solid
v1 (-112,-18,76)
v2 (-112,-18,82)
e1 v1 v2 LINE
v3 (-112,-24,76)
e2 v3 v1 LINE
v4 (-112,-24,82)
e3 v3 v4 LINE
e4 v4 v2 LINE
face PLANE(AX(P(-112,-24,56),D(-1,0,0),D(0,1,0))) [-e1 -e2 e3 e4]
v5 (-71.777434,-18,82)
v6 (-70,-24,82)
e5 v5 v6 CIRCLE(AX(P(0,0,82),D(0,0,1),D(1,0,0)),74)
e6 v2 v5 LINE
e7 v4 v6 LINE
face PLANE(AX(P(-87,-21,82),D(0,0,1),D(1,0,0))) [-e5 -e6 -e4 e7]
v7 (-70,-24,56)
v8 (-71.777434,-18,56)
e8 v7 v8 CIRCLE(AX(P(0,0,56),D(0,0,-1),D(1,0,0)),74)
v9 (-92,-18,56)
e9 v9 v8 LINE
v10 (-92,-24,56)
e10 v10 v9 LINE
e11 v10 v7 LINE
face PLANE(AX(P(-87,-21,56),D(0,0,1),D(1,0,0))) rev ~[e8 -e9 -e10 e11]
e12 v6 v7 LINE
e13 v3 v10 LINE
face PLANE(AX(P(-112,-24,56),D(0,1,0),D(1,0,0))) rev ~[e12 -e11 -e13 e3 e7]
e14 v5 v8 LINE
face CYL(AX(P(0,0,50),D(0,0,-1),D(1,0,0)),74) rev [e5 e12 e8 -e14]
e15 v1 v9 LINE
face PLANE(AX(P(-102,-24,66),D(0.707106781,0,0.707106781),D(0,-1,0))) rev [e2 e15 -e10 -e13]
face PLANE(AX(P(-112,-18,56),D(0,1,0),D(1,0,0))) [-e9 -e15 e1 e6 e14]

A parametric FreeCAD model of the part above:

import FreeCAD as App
import Part
import Sketcher

V = App.Vector


def edges_at(feature, points):
    """Names of the edges that pass closest to the given points."""
    edges = feature.Shape.Edges
    near = lambda p: min(range(len(edges)), key=lambda i: edges[i].distToShape(Part.Vertex(*p))[0])
    return sorted({f"Edge{near(p) + 1}" for p in points})


def add_polygon(sketch, points):
    """Adds a closed chain of lines whose ends are joined by coincident constraints."""
    first, n = sketch.GeometryCount, len(points)
    for a, b in zip(points, points[1:] + points[:1]):
        sketch.addGeometry(Part.LineSegment(App.Vector(*a, 0), App.Vector(*b, 0)), False)
    for i in range(n):
        sketch.addConstraint(Sketcher.Constraint("Coincident", first + i, 2, first + (i + 1) % n, 1))

doc = App.newDocument("Part")
params = doc.addObject("Spreadsheet::Sheet", "Params")
for row, (alias, value) in enumerate([
    ("sketch1_diameter", "148 mm"),
    ("pad1_length", "32 mm"),
    ("sketch2_width", "50 mm"),
    ("sketch2_height", "6 mm"),
    ("pad2_length", "26 mm"),
    ("chamfer_size", "20 mm"),
], start=1):
    params.set(f"A{row}", alias)
    params.set(f"B{row}", "=" + value)
    params.setAlias(f"B{row}", alias)

body = doc.addObject("PartDesign::Body", "Body")

sketch1 = doc.addObject("Sketcher::SketchObject", "Sketch")
body.addObject(sketch1)
sketch1.AttachmentSupport = (doc.XY_Plane, [""])
sketch1.MapMode = "FlatFace"
sketch1.AttachmentOffset = App.Placement(V(0, 0, 50), App.Rotation())
sketch1.addGeometry(Part.Circle(V(0, 0, 0), V(0, 0, 1), 74), False)
sketch1.addConstraint([
    Sketcher.Constraint("Coincident", 0, 3, -1, 1),
    Sketcher.Constraint("Diameter", 0, 148.0),
])
sketch1.setExpression("Constraints[1]", "Params.sketch1_diameter")
pad1 = doc.addObject("PartDesign::Pad", "Pad")
body.addObject(pad1)
pad1.Profile = sketch1
pad1.setExpression("Length", "Params.pad1_length")
body2 = doc.addObject("PartDesign::Body", "Body001")

sketch2 = doc.addObject("Sketcher::SketchObject", "Sketch001")
body2.addObject(sketch2)
sketch2.AttachmentSupport = (doc.getObject("XY_Plane001"), [""])
sketch2.MapMode = "FlatFace"
sketch2.AttachmentOffset = App.Placement(V(0, 0, 56), App.Rotation())
add_polygon(sketch2, [(-112, -18), (-112, -24), (-62, -24), (-62, -18)])
sketch2.addConstraint([
    Sketcher.Constraint("Vertical", 0),
    Sketcher.Constraint("Horizontal", 1),
    Sketcher.Constraint("Vertical", 2),
    Sketcher.Constraint("Horizontal", 3),
    Sketcher.Constraint("DistanceX", 1, 1, 1, 2, 50.0),
    Sketcher.Constraint("DistanceY", 0, 2, 0, 1, 6.0),
    Sketcher.Constraint("DistanceX", 0, 2, -1, 1, 112.0),
    Sketcher.Constraint("DistanceY", 0, 2, -1, 1, 24.0),
])
sketch2.setExpression("Constraints[8]", "Params.sketch2_width")
sketch2.setExpression("Constraints[9]", "Params.sketch2_height")
pad2 = doc.addObject("PartDesign::Pad", "Pad001")
body2.addObject(pad2)
pad2.Profile = sketch2
pad2.setExpression("Length", "Params.pad2_length")
doc.recompute()

boolean = doc.addObject("PartDesign::Boolean", "Boolean")
body2.addObject(boolean)
boolean.Type = "Cut"
boolean.addObjects([body])
doc.recompute()

chamfer = doc.addObject("PartDesign::Chamfer", "Chamfer")
body2.addObject(chamfer)
chamfer.Base = (boolean, edges_at(boolean, [(-112, -21, 56)]))
chamfer.setExpression("Size", "Params.chamfer_size")

doc.recompute()
